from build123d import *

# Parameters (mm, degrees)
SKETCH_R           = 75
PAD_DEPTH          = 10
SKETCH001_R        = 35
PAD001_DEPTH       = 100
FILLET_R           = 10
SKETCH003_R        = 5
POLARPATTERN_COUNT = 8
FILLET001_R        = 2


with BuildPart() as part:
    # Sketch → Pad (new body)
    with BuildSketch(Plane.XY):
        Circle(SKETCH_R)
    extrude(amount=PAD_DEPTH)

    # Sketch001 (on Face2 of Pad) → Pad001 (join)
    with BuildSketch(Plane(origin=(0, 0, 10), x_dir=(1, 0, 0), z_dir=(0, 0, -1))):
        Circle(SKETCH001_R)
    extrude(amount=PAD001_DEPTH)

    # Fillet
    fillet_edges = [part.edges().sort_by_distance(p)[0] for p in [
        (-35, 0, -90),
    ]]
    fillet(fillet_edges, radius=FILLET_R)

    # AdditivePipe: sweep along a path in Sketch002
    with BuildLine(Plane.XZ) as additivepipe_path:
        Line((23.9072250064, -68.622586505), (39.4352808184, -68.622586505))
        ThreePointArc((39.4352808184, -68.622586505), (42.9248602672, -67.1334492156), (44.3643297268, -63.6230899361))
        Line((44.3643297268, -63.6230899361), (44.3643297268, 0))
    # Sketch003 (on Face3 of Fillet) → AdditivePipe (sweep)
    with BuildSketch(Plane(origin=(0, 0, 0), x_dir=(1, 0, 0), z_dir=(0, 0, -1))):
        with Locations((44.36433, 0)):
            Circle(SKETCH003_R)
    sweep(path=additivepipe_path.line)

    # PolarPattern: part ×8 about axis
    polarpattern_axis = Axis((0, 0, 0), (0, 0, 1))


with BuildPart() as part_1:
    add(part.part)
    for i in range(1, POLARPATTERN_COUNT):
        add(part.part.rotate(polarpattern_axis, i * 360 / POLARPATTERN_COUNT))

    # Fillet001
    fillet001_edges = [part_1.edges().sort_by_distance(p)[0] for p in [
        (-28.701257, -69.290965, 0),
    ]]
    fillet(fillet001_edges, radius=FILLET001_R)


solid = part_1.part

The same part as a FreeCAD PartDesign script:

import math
import FreeCAD as App
import Part
import Sketcher
from FreeCAD import Vector
Q = App.Units.Quantity


def edges_at(feature, points):
    """Names of the edges that pass closest to the given points."""
    edges = feature.Shape.Edges
    near = lambda p: min(range(len(edges)), key=lambda i: edges[i].distToShape(Part.Vertex(*p))[0])
    return sorted({f"Edge{near(p) + 1}" for p in points})

doc = App.newDocument("Part")
body = doc.addObject("PartDesign::Body", "Body")

# Sketch on XY plane
sketch1 = body.newObject("Sketcher::SketchObject", "Sketch")
sketch1.AttachmentSupport = (doc.getObject("XY_Plane"), [""])
sketch1.MapMode = "FlatFace"
sketch1.addGeometry(Part.Circle(Vector(0, 0, 0), Vector(0, 0, 1), 75), False)
sketch1.addConstraint([
    Sketcher.Constraint("Coincident", 0, 3, -1, 1),
    Sketcher.Constraint("Diameter", 0, Q("150 mm")),
])
pad1 = body.newObject("PartDesign::Pad", "Pad")
pad1.Profile = sketch1
pad1.Length = 10

# Sketch on XY plane
sketch2 = body.newObject("Sketcher::SketchObject", "Sketch001")
sketch2.AttachmentSupport = (doc.getObject("XY_Plane"), [""])
sketch2.MapMode = "FlatFace"
sketch2.AttachmentOffset = App.Placement(Vector(0, 0, 10), App.Rotation())
sketch2.addGeometry(Part.Circle(Vector(0, 0, 0), Vector(0, 0, 1), 35), False)
sketch2.addConstraint([
    Sketcher.Constraint("Coincident", 0, 3, -1, 1),
    Sketcher.Constraint("Diameter", 0, Q("70 mm")),
])
pad2 = body.newObject("PartDesign::Pad", "Pad001")
pad2.Profile = sketch2
pad2.Length = 100
pad2.Reversed = True
doc.recompute()

fillet = body.newObject("PartDesign::Fillet", "Fillet")
fillet.Base = (pad2, edges_at(pad2, [(-35, 0, -90)]))
fillet.Radius = 10

# Sketch on XY plane
sketch3 = body.newObject("Sketcher::SketchObject", "Sketch002")
sketch3.AttachmentSupport = (doc.getObject("XY_Plane"), [""])
sketch3.MapMode = "FlatFace"
sketch3.addGeometry(Part.Circle(Vector(44, 0, 0), Vector(0, 0, 1), 5), False)
sketch3.addConstraint([
    Sketcher.Constraint("PointOnObject", 0, 3, -1),
    Sketcher.Constraint("Diameter", 0, Q("10 mm")),
    Sketcher.Constraint("DistanceX", -1, 1, 0, 3, Q("44.36433 mm")),
])

# Sketch on XZ plane
sketch4 = body.newObject("Sketcher::SketchObject", "Sketch003")
sketch4.AttachmentSupport = (doc.getObject("XZ_Plane"), [""])
sketch4.MapMode = "FlatFace"
sketch4.addGeometry([
    Part.LineSegment(Vector(24, -69, 0), Vector(39, -69, 0)),
    Part.ArcOfCircle(Part.Circle(Vector(39, -64, 0), Vector(0, 0, 1), 5), math.radians(-89), math.radians(0)),
    Part.LineSegment(Vector(44, -64, 0), Vector(44, 0, 0)),
], False)
sketch4.addConstraint([
    Sketcher.Constraint("Coincident", 0, 2, 1, 1),
    Sketcher.Constraint("Tangent", 1, 2, 2, 1),
    Sketcher.Constraint("Horizontal", 0),
    Sketcher.Constraint("Vertical", 2),
    Sketcher.Constraint("PointOnObject", 2, 2, -1),
    Sketcher.Constraint("Radius", 1, Q("5 mm")),
    Sketcher.Constraint("DistanceY", 2, 1, 2, 2, Q("63.62309 mm")),
    Sketcher.Constraint("DistanceX", 0, 1, 0, 2, Q("15.528056 mm")),
    Sketcher.Constraint("DistanceX", -1, 1, 1, 3, Q("39.36433 mm")),
    Sketcher.Constraint("DistanceX", -1, 1, 0, 2, Q("39.435281 mm")),
])
doc.recompute()

additivepipe = body.newObject("PartDesign::AdditivePipe", "AdditivePipe")
additivepipe.Profile = sketch3
additivepipe.Spine = (sketch4, ["Edge1", "Edge2", "Edge3"])
body2 = doc.addObject("PartDesign::Body", "Body001")
doc.recompute()

body2.BaseFeature = body
doc.recompute()

body3 = doc.addObject("PartDesign::Body", "Body002")
body3.BaseFeature = body
body3.Placement = App.Placement(Vector(0, 0, 0), App.Rotation(Vector(0, 0, 1), 45))
boolean = body2.newObject("PartDesign::Boolean", "Boolean")
boolean.Type = "Fuse"
boolean.addObjects([body3])
doc.recompute()

body4 = doc.addObject("PartDesign::Body", "Body003")
body4.BaseFeature = body
body4.Placement = App.Placement(Vector(0, 0, 0), App.Rotation(Vector(0, 0, 1), 90))
boolean2 = body2.newObject("PartDesign::Boolean", "Boolean001")
boolean2.Type = "Fuse"
boolean2.addObjects([body4])
doc.recompute()

body5 = doc.addObject("PartDesign::Body", "Body004")
body5.BaseFeature = body
body5.Placement = App.Placement(Vector(0, 0, 0), App.Rotation(Vector(0, 0, 1), 135))
boolean3 = body2.newObject("PartDesign::Boolean", "Boolean002")
boolean3.Type = "Fuse"
boolean3.addObjects([body5])
doc.recompute()

body6 = doc.addObject("PartDesign::Body", "Body005")
body6.BaseFeature = body
body6.Placement = App.Placement(Vector(0, 0, 0), App.Rotation(Vector(0, 0, 1), 180))
boolean4 = body2.newObject("PartDesign::Boolean", "Boolean003")
boolean4.Type = "Fuse"
boolean4.addObjects([body6])
doc.recompute()

body7 = doc.addObject("PartDesign::Body", "Body006")
body7.BaseFeature = body
body7.Placement = App.Placement(Vector(0, 0, 0), App.Rotation(Vector(0, 0, 1), 225))
boolean5 = body2.newObject("PartDesign::Boolean", "Boolean004")
boolean5.Type = "Fuse"
boolean5.addObjects([body7])
doc.recompute()

body8 = doc.addObject("PartDesign::Body", "Body007")
body8.BaseFeature = body
body8.Placement = App.Placement(Vector(0, 0, 0), App.Rotation(Vector(0, 0, 1), 270))
boolean6 = body2.newObject("PartDesign::Boolean", "Boolean005")
boolean6.Type = "Fuse"
boolean6.addObjects([body8])
doc.recompute()

body.Placement = App.Placement(Vector(0, 0, 0), App.Rotation(Vector(0, 0, 1), 315))
boolean7 = body2.newObject("PartDesign::Boolean", "Boolean006")
boolean7.Type = "Fuse"
boolean7.addObjects([body])
doc.recompute()

fillet2 = body2.newObject("PartDesign::Fillet", "Fillet001")
fillet2.Base = (boolean7, edges_at(boolean7, [(-75, 0, 0)]))
fillet2.Radius = 2

doc.recompute()
